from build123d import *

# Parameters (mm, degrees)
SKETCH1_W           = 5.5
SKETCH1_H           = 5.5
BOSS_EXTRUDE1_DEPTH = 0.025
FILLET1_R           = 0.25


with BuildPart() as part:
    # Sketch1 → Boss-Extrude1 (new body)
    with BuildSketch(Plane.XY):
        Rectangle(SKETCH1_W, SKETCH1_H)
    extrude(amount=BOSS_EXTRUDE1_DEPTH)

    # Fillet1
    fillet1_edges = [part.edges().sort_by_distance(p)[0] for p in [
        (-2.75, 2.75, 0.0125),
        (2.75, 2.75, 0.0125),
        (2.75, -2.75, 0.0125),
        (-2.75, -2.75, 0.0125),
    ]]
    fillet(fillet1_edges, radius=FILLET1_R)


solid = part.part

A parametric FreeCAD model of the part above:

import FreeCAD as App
import Part
import Sketcher

V = App.Vector
Q = App.Units.Quantity


def edges_at(feature, points):
    """Names of the edges that pass closest to the given points."""
    edges = feature.Shape.Edges
    near = lambda p: min(range(len(edges)), key=lambda i: edges[i].distToShape(Part.Vertex(*p))[0])
    return sorted({f"Edge{near(p) + 1}" for p in points})

doc = App.newDocument("Part")
body = doc.addObject("PartDesign::Body", "Body")

# Sketch on XY plane
sketch1 = body.newObject("Sketcher::SketchObject", "Sketch")
sketch1.AttachmentSupport = (doc.getObject("XY_Plane"), [""])
sketch1.MapMode = "FlatFace"
sketch1.addGeometry(Part.LineSegment(V(-3, 3, 0), V(-3, -3, 0)), False)
sketch1.addGeometry(Part.LineSegment(V(-3, -3, 0), V(3, -3, 0)), False)
sketch1.addGeometry(Part.LineSegment(V(3, -3, 0), V(3, 3, 0)), False)
sketch1.addGeometry(Part.LineSegment(V(3, 3, 0), V(-3, 3, 0)), False)
sketch1.addConstraint(Sketcher.Constraint("Coincident", 0, 2, 1, 1))
sketch1.addConstraint(Sketcher.Constraint("Coincident", 1, 2, 2, 1))
sketch1.addConstraint(Sketcher.Constraint("Coincident", 2, 2, 3, 1))
sketch1.addConstraint(Sketcher.Constraint("Coincident", 3, 2, 0, 1))
sketch1.addConstraint(Sketcher.Constraint("Vertical", 0))
sketch1.addConstraint(Sketcher.Constraint("Horizontal", 1))
sketch1.addConstraint(Sketcher.Constraint("Vertical", 2))
sketch1.addConstraint(Sketcher.Constraint("Horizontal", 3))
sketch1.addConstraint(Sketcher.Constraint("Symmetric", 0, 2, 2, 2, -1, 1))
sketch1.addConstraint(Sketcher.Constraint("Equal", 3, 0))
sketch1.addConstraint(Sketcher.Constraint("DistanceX", 1, 1, 1, 2, Q("5.5 mm")))
pad1 = body.newObject("PartDesign::Pad", "Pad")
pad1.Profile = sketch1
pad1.Length = 0.025
doc.recompute()

fillet = body.newObject("PartDesign::Fillet", "Fillet")
fillet.Base = (pad1, edges_at(pad1, [
    (-2.75, 2.75, 0.013),
    (2.75, 2.75, 0.013),
    (2.75, -2.75, 0.013),
    (-2.75, -2.75, 0.013),
]))
fillet.Radius = 0.25

doc.recompute()
